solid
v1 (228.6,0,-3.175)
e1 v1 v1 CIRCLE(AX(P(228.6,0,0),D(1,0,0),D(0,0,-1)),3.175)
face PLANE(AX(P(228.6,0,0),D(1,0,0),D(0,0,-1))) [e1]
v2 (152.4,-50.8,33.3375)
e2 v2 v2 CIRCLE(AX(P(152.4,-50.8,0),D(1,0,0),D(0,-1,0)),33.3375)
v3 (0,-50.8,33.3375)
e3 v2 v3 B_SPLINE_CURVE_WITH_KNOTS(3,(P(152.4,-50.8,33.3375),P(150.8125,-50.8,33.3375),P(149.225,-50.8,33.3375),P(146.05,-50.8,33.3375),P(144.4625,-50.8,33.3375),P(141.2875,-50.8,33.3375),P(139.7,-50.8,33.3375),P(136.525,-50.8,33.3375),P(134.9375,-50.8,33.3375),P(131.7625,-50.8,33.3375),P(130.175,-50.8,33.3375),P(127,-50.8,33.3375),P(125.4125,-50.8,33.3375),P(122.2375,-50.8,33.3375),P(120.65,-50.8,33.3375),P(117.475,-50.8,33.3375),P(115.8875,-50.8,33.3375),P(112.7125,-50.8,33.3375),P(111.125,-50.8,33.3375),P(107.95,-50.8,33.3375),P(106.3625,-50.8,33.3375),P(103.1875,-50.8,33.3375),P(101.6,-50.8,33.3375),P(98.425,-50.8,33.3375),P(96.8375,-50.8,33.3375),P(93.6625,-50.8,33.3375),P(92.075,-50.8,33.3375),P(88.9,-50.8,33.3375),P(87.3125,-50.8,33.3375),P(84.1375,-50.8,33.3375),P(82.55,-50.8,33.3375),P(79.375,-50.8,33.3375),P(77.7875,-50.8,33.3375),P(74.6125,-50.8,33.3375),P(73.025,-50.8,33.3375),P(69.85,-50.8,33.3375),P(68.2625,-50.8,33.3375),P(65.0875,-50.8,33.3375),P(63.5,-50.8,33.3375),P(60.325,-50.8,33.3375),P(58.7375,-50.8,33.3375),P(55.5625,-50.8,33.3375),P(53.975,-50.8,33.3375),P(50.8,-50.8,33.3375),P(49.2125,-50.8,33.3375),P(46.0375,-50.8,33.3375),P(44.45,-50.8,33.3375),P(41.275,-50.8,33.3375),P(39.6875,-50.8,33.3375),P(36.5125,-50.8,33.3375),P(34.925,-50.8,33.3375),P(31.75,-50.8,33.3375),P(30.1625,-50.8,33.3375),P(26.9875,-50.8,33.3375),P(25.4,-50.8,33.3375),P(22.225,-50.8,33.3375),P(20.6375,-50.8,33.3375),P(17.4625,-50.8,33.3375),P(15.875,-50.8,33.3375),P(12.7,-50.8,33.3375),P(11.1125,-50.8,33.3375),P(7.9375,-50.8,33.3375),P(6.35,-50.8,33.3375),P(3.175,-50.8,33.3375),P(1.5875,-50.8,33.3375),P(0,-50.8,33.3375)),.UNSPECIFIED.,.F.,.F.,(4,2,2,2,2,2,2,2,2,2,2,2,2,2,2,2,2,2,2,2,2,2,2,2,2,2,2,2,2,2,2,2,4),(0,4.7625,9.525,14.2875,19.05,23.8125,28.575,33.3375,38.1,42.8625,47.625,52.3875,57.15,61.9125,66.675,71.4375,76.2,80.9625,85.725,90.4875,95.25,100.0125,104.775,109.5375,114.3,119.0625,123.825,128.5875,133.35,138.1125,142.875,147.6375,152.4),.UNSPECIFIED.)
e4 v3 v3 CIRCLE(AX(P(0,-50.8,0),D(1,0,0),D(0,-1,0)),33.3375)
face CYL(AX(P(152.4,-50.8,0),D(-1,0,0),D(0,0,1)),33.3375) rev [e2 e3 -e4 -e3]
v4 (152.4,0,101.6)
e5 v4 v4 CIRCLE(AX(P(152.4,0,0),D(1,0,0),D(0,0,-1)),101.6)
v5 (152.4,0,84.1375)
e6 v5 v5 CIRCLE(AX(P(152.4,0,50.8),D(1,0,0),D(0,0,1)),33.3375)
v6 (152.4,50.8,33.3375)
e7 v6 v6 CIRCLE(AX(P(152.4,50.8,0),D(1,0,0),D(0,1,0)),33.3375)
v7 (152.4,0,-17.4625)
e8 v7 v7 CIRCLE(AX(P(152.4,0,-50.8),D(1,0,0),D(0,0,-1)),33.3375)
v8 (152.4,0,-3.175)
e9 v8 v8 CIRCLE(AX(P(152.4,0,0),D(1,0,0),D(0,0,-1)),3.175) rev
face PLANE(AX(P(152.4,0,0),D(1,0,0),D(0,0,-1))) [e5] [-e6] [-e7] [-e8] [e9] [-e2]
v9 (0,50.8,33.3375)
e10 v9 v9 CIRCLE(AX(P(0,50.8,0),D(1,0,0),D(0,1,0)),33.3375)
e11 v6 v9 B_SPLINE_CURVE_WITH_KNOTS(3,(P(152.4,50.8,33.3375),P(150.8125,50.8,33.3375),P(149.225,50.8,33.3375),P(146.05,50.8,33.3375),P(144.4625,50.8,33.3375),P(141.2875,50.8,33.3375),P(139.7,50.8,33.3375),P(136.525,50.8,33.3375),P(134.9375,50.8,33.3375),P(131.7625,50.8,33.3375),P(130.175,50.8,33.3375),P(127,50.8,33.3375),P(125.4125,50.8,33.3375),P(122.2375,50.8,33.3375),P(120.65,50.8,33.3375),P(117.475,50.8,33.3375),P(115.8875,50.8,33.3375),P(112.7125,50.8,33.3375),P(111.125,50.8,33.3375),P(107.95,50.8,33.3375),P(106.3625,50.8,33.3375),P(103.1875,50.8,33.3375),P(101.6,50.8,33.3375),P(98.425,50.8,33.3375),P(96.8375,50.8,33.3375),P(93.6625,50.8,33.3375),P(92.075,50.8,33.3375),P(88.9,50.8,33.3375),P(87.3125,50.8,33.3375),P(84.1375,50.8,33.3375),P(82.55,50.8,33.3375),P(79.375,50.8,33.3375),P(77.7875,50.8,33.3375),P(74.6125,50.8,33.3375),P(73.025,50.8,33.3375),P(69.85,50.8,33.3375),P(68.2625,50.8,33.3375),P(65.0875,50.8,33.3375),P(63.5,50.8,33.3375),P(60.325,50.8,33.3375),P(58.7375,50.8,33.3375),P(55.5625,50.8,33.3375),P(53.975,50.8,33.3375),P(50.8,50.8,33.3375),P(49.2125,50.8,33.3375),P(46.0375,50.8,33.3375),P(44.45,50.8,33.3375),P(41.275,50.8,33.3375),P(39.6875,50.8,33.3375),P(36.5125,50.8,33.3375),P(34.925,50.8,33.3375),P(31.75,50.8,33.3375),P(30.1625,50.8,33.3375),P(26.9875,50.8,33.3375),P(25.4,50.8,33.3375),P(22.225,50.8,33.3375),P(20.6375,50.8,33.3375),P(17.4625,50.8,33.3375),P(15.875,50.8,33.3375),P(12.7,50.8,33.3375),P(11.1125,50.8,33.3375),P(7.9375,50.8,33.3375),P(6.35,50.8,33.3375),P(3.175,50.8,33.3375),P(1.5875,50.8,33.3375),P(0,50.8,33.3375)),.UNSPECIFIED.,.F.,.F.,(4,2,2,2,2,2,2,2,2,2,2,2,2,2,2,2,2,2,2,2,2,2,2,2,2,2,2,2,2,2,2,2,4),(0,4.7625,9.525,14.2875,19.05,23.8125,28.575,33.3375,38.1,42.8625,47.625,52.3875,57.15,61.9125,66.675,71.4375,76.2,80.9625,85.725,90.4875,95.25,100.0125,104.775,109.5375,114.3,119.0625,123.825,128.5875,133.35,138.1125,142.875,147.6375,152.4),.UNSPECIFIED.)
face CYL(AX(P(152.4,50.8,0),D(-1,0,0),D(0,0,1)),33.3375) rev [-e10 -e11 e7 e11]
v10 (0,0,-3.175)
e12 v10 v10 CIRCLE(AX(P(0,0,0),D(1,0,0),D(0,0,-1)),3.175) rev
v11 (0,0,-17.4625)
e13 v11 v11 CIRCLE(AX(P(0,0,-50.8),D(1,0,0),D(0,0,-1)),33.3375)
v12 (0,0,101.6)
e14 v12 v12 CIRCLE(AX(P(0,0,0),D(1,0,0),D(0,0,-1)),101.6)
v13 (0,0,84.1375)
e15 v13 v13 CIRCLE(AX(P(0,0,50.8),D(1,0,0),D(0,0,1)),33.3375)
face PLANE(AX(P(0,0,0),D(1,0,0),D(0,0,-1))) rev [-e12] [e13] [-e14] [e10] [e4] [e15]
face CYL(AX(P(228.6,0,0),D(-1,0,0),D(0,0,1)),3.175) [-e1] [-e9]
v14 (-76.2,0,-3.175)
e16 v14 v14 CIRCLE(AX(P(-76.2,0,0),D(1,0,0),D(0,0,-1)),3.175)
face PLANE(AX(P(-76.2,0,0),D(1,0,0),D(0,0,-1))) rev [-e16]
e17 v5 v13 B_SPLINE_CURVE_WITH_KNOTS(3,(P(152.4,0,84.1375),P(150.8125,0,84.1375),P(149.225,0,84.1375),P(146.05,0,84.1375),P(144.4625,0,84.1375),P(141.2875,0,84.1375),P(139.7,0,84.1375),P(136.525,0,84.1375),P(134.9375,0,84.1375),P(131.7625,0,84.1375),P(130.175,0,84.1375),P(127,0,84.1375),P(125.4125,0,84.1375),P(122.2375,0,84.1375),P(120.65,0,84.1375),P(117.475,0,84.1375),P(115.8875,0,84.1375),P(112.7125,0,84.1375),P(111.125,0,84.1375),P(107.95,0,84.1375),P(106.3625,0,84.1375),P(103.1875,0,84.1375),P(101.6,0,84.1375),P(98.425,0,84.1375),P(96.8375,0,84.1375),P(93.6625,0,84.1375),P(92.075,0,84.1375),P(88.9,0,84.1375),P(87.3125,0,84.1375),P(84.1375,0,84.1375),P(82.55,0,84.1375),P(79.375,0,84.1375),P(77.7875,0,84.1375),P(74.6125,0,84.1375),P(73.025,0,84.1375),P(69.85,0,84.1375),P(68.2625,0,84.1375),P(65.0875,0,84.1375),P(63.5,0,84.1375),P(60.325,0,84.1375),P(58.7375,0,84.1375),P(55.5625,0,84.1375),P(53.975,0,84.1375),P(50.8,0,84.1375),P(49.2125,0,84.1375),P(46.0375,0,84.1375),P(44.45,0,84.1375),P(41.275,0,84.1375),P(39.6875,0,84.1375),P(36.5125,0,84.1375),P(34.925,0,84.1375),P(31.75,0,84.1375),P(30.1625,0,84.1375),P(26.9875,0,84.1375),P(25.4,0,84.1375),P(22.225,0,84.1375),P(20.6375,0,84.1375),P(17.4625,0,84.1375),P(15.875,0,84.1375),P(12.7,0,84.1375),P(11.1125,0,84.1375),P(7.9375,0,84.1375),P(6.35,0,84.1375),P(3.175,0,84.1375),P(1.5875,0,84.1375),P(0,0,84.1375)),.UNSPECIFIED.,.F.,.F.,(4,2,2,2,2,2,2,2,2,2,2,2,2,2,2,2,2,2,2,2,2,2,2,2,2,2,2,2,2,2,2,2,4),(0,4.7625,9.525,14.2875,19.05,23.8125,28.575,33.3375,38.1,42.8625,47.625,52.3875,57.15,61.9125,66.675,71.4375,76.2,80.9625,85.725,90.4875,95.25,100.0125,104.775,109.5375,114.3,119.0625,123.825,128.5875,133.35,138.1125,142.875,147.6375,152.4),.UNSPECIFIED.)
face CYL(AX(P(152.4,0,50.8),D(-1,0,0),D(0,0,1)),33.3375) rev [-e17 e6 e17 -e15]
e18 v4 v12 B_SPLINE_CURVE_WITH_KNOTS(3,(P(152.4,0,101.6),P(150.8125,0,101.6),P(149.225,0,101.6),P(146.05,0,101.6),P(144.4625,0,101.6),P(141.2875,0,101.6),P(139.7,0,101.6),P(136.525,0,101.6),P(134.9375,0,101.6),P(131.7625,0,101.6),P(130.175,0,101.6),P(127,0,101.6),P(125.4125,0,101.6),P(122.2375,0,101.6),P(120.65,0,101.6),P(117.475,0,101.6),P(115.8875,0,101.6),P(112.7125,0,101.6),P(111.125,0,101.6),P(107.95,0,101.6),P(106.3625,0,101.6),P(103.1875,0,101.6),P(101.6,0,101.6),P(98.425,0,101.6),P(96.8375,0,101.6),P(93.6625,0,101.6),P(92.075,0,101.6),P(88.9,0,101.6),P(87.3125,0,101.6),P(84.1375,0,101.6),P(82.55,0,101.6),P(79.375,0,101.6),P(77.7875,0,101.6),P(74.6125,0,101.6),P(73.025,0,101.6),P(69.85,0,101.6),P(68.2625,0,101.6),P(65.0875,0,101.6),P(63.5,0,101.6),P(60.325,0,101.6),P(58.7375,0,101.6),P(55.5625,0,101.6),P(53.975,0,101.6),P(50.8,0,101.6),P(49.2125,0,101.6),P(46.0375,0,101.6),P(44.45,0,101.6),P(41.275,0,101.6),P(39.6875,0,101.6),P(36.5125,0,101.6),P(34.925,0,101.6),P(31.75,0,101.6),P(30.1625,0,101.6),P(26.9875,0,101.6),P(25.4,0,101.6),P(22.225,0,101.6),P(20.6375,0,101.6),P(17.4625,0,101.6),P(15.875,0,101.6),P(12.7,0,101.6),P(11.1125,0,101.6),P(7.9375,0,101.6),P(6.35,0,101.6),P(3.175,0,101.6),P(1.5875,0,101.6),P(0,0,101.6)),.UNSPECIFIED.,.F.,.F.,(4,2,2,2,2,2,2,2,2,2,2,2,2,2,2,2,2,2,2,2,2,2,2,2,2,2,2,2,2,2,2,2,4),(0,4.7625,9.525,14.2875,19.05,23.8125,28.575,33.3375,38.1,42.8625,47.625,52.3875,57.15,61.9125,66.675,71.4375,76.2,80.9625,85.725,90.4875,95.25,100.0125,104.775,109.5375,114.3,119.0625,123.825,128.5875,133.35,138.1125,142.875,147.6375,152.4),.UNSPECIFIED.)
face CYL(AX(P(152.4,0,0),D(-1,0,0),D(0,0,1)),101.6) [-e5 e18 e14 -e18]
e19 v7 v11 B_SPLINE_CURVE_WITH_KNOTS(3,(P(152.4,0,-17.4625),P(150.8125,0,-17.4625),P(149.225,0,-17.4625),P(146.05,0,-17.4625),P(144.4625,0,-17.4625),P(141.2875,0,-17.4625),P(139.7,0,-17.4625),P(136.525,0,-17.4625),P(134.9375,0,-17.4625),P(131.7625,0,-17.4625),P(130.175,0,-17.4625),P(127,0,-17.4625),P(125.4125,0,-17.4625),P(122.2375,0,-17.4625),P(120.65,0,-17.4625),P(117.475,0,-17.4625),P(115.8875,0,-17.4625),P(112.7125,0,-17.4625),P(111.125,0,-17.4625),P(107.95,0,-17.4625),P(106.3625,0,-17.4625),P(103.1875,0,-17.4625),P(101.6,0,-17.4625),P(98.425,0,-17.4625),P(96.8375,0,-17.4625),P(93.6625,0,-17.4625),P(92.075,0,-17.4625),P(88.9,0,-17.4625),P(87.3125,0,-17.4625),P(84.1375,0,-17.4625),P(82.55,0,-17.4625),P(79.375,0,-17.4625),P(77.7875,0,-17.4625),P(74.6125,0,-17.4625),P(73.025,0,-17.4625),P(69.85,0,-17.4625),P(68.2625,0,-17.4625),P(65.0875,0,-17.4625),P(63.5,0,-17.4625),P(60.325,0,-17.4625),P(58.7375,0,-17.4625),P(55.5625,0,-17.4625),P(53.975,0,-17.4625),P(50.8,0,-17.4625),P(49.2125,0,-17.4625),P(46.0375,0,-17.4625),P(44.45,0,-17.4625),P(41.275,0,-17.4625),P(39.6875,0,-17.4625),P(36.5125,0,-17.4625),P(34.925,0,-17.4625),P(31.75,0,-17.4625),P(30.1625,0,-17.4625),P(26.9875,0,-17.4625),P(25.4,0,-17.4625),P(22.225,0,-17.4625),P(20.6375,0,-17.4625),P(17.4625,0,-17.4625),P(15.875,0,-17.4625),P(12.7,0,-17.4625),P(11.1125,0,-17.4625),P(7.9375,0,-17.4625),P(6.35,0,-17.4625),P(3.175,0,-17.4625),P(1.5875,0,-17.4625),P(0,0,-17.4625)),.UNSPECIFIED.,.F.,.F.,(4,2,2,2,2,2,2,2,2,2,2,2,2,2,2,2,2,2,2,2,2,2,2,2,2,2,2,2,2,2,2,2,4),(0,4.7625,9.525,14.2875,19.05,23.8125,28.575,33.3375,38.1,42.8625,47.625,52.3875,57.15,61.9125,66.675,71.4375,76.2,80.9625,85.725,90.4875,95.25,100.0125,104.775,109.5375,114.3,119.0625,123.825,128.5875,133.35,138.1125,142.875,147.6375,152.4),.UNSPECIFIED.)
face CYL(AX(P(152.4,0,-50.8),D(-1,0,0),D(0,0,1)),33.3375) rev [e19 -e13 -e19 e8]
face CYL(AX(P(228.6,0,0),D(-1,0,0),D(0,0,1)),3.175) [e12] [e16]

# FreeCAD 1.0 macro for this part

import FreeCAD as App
import Part
import Sketcher
Q = App.Units.Quantity

doc = App.newDocument("Part")
body = doc.addObject("PartDesign::Body", "Body")

# Sketch on YZ plane
sketch1 = body.newObject("Sketcher::SketchObject", "Sketch")
sketch1.AttachmentSupport = (doc.getObject("YZ_Plane"), [""])
sketch1.MapMode = "FlatFace"
sketch1.addGeometry(Part.Circle(App.Vector(0, 0, 0), App.Vector(0, 0, 1), 102), False)
sketch1.addConstraint(Sketcher.Constraint("Coincident", 0, 3, -1, 1))
sketch1.addConstraint(Sketcher.Constraint("Diameter", 0, Q("8 in")))
pad1 = body.newObject("PartDesign::Pad", "Pad")
pad1.Profile = sketch1
pad1.Length = Q("6 in")

# Sketch on YZ plane
sketch2 = body.newObject("Sketcher::SketchObject", "Sketch001")
sketch2.AttachmentSupport = (doc.getObject("YZ_Plane"), [""])
sketch2.MapMode = "FlatFace"
sketch2.addGeometry(Part.Circle(App.Vector(0, -51, 0), App.Vector(0, 0, 1), 33), False)
sketch2.addConstraint(Sketcher.Constraint("PointOnObject", 0, 3, -2))
sketch2.addConstraint(Sketcher.Constraint("Diameter", 0, Q("2.625 in")))
sketch2.addConstraint(Sketcher.Constraint("DistanceY", 0, 3, -1, 1, Q("2 in")))
pocket1 = body.newObject("PartDesign::Pocket", "Pocket")
pocket1.Profile = sketch2
pocket1.Type = "ThroughAll"
pocket1.Reversed = True
doc.recompute()

polarpattern = body.newObject("PartDesign::PolarPattern", "PolarPattern")
polarpattern.Originals = [pocket1]
polarpattern.Axis = (doc.getObject("X_Axis"), [""])
polarpattern.Angle = 360
polarpattern.Occurrences = 4
body.Tip = polarpattern

# Sketch on YZ plane
sketch3 = body.newObject("Sketcher::SketchObject", "Sketch002")
sketch3.AttachmentSupport = (doc.getObject("YZ_Plane"), [""])
sketch3.MapMode = "FlatFace"
sketch3.addGeometry(Part.Circle(App.Vector(0, 0, 0), App.Vector(0, 0, 1), 3.2), False)
sketch3.addConstraint(Sketcher.Constraint("Coincident", 0, 3, -1, 1))
sketch3.addConstraint(Sketcher.Constraint("Diameter", 0, Q("0.25 in")))
pad2 = body.newObject("PartDesign::Pad", "Pad001")
pad2.Profile = sketch3
pad2.Type = "TwoLengths"
pad2.Length = Q("9 in")
pad2.Length2 = Q("3 in")

doc.recompute()
